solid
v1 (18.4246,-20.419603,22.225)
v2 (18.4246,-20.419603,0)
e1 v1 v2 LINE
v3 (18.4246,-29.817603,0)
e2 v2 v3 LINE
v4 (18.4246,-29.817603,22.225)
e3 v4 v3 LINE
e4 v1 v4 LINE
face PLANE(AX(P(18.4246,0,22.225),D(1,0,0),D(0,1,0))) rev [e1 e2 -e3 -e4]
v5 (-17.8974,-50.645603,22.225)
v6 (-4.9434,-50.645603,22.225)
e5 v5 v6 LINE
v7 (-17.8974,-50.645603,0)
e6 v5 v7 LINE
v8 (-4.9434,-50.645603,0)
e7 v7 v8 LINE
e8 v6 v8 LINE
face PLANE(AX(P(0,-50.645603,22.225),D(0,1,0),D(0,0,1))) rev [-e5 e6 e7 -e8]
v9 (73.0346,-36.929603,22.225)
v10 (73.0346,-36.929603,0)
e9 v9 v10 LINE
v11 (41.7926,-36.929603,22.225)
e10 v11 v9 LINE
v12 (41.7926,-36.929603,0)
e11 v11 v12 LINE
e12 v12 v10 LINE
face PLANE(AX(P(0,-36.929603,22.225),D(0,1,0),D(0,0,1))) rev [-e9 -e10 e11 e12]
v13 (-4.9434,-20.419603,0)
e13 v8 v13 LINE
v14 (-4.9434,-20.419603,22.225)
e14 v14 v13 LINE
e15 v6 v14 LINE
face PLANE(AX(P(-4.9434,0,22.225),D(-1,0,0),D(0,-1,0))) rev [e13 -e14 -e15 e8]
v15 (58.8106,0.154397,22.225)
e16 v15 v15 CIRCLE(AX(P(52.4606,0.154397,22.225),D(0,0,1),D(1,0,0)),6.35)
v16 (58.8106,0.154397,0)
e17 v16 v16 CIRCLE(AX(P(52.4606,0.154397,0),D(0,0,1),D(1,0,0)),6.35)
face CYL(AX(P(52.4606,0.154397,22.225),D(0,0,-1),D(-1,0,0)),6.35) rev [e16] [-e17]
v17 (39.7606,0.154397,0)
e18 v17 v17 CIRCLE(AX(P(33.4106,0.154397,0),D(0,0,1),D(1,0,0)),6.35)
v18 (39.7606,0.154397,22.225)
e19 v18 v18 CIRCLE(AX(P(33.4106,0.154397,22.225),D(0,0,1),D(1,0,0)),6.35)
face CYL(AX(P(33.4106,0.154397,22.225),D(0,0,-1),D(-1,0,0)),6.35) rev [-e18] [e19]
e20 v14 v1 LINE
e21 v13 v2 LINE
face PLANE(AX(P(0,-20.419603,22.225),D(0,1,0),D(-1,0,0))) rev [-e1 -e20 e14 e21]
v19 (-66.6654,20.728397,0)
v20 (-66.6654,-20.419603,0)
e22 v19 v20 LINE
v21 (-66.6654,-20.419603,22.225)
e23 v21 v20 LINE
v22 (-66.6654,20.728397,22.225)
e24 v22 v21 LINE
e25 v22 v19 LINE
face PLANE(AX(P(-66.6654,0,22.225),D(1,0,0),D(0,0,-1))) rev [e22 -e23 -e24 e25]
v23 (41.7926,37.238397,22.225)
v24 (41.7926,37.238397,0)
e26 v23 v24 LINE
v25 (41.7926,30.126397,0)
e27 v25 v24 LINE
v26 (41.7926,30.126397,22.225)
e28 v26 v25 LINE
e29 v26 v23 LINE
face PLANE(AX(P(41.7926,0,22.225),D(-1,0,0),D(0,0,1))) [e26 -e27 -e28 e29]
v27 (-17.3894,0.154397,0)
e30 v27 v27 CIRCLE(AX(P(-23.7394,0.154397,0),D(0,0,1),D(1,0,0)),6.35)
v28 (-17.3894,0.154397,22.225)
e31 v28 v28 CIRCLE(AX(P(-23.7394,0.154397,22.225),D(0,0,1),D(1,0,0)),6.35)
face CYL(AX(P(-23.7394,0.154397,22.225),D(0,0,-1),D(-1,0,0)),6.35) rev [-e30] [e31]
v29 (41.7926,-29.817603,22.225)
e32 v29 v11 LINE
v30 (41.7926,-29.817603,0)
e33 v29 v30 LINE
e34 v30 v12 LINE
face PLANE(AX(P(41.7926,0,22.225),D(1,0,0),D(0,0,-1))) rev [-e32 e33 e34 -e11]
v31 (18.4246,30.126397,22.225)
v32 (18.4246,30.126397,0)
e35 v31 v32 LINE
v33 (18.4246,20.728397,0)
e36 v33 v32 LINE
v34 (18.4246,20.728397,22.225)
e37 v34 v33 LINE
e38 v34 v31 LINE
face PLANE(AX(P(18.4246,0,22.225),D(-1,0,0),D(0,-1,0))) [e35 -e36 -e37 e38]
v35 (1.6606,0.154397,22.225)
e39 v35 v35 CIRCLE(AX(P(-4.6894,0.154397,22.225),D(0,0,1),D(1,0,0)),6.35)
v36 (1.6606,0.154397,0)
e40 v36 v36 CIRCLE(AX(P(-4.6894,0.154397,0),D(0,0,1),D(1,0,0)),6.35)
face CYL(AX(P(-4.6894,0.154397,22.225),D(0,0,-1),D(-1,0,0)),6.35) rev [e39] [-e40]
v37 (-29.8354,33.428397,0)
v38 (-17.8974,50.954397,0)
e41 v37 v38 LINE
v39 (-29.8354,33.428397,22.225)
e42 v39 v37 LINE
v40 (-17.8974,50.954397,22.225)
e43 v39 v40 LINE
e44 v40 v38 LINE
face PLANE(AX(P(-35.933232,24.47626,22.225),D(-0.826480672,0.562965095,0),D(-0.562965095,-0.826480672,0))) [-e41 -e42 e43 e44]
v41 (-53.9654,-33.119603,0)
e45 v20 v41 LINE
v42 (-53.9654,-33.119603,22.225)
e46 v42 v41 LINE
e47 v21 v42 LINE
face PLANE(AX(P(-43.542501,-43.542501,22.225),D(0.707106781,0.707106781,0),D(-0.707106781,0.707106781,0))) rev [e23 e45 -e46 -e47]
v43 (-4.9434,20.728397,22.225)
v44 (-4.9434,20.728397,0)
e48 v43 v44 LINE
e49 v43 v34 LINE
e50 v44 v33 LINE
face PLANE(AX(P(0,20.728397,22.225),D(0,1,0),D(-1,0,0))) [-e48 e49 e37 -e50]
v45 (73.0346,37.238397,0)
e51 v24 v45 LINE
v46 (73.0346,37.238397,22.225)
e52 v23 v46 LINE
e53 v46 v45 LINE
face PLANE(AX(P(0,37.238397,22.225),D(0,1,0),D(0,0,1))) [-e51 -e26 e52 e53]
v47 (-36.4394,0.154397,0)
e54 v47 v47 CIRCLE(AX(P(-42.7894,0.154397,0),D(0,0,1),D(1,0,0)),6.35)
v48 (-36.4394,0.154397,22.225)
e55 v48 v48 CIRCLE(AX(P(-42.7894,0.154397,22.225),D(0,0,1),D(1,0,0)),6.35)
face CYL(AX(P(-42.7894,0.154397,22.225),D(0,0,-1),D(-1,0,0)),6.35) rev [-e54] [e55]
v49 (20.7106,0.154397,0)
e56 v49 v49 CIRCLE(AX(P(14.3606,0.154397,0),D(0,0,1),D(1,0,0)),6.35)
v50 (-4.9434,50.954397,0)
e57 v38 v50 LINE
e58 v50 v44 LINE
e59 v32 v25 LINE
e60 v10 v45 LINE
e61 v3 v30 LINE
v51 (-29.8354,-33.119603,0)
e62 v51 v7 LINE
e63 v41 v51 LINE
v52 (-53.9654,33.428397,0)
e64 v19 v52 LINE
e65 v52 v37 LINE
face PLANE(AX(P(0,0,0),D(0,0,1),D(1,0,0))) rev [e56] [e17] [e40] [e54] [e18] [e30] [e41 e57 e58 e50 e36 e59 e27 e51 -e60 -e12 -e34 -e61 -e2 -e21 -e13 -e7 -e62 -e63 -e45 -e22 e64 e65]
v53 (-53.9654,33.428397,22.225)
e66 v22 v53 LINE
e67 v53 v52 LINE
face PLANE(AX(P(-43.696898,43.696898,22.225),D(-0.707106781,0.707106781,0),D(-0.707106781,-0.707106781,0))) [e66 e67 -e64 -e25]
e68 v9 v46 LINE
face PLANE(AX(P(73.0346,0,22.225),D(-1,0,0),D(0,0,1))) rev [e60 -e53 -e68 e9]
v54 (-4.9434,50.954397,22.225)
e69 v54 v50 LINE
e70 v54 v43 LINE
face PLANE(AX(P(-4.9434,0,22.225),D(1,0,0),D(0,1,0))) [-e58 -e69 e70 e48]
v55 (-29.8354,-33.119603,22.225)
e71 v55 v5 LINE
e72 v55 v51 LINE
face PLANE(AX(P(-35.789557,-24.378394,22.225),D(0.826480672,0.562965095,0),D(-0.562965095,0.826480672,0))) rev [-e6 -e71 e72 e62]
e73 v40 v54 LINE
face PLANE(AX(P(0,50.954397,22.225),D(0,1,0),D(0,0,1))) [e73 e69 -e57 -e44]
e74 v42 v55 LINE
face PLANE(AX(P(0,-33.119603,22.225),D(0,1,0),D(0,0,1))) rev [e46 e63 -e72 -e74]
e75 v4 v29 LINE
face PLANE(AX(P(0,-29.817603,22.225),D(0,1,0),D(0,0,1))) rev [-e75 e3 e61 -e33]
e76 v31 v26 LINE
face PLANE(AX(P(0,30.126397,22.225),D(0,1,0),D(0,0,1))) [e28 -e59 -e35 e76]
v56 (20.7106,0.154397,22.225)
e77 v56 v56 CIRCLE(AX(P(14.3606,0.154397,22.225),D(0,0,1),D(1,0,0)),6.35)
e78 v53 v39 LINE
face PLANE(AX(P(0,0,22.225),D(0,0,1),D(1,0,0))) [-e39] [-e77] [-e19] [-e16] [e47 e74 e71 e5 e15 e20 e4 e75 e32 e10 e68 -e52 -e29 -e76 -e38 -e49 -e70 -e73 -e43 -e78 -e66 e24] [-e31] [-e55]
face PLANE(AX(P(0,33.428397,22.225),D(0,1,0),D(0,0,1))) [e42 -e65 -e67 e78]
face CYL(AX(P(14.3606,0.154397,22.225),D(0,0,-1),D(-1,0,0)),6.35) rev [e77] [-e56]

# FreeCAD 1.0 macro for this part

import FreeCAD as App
import Part
import Sketcher
from FreeCAD import Vector
Q = App.Units.Quantity

doc = App.newDocument("Part")
params = doc.addObject("Spreadsheet::Sheet", "Params")
for row, (alias, value) in enumerate([
    ("sketch1_diameter", "0.5 in"),
    ("sketch1_width", "0.95 in"),
    ("sketch1_width2", "0.51 in"),
    ("sketch1_width3", "0.92 in"),
    ("sketch1_width4", "1.23 in"),
    ("pad1_length", "0.875 in"),
], start=1):
    params.set(f"A{row}", alias)
    params.set(f"B{row}", "=" + value)
    params.setAlias(f"B{row}", alias)

body = doc.addObject("PartDesign::Body", "Body")

# Sketch on XY plane
sketch1 = doc.addObject("Sketcher::SketchObject", "Sketch")
body.addObject(sketch1)
sketch1.AttachmentSupport = (doc.XY_Plane, [""])
sketch1.MapMode = "FlatFace"
sketch1.addGeometry([
    Part.LineSegment(Vector(-66.6654, -20.419603, 0), Vector(-53.9654, -33.119603, 0)),  # 0
    Part.LineSegment(Vector(-53.9654, -33.119603, 0), Vector(-29.8354, -33.119603, 0)),  # 1
    Part.LineSegment(Vector(-29.8354, -33.119603, 0), Vector(-17.8974, -50.645603, 0)),  # 2
    Part.LineSegment(Vector(-17.8974, -50.645603, 0), Vector(-4.9434, -50.645603, 0)),  # 3
    Part.LineSegment(Vector(-4.9434, -50.645603, 0), Vector(-4.9434, -20.419603, 0)),  # 4
    Part.LineSegment(Vector(-4.9434, -20.419603, 0), Vector(18.4246, -20.419603, 0)),  # 5
    Part.LineSegment(Vector(18.4246, -20.419603, 0), Vector(18.4246, -29.817603, 0)),  # 6
    Part.LineSegment(Vector(18.4246, -29.817603, 0), Vector(41.7926, -29.817603, 0)),  # 7
    Part.LineSegment(Vector(41.7926, -29.817603, 0), Vector(41.7926, -36.929603, 0)),  # 8
    Part.LineSegment(Vector(41.7926, -36.929603, 0), Vector(73.0346, -36.929603, 0)),  # 9
    Part.LineSegment(Vector(73.0346, -36.929603, 0), Vector(73.0346, 37.238397, 0)),  # 10
    Part.LineSegment(Vector(73.0346, 37.238397, 0), Vector(41.7926, 37.238397, 0)),  # 11
    Part.LineSegment(Vector(41.7926, 37.238397, 0), Vector(41.7926, 30.126397, 0)),  # 12
    Part.LineSegment(Vector(41.7926, 30.126397, 0), Vector(18.4246, 30.126397, 0)),  # 13
    Part.LineSegment(Vector(18.4246, 30.126397, 0), Vector(18.4246, 20.728397, 0)),  # 14
    Part.LineSegment(Vector(18.4246, 20.728397, 0), Vector(-4.9434, 20.728397, 0)),  # 15
    Part.LineSegment(Vector(-4.9434, 20.728397, 0), Vector(-4.9434, 50.954397, 0)),  # 16
    Part.LineSegment(Vector(-4.9434, 50.954397, 0), Vector(-17.8974, 50.954397, 0)),  # 17
    Part.LineSegment(Vector(-17.8974, 50.954397, 0), Vector(-29.8354, 33.428397, 0)),  # 18
    Part.LineSegment(Vector(-29.8354, 33.428397, 0), Vector(-53.9654, 33.428397, 0)),  # 19
    Part.LineSegment(Vector(-53.9654, 33.428397, 0), Vector(-66.6654, 20.728397, 0)),  # 20
    Part.LineSegment(Vector(-66.6654, 20.728397, 0), Vector(-66.6654, -20.419603, 0)),  # 21
    Part.Circle(Vector(52.4606, 0.154397, 0), Vector(0, 0, 1), 6.35),  # 22
    Part.Circle(Vector(33.4106, 0.154397, 0), Vector(0, 0, 1), 6.35),  # 23
    Part.Circle(Vector(14.3606, 0.154397, 0), Vector(0, 0, 1), 6.35),  # 24
    Part.Circle(Vector(-4.6894, 0.154397, 0), Vector(0, 0, 1), 6.35),  # 25
    Part.Circle(Vector(-23.7394, 0.154397, 0), Vector(0, 0, 1), 6.35),  # 26
    Part.Circle(Vector(-42.7894, 0.154397, 0), Vector(0, 0, 1), 6.35),  # 27
], False)
sketch1.addConstraint([
    Sketcher.Constraint("Coincident", 0, 2, 1, 1),
    Sketcher.Constraint("Coincident", 1, 2, 2, 1),
    Sketcher.Constraint("Coincident", 2, 2, 3, 1),
    Sketcher.Constraint("Coincident", 3, 2, 4, 1),
    Sketcher.Constraint("Coincident", 4, 2, 5, 1),
    Sketcher.Constraint("Coincident", 5, 2, 6, 1),
    Sketcher.Constraint("Coincident", 6, 2, 7, 1),
    Sketcher.Constraint("Coincident", 7, 2, 8, 1),
    Sketcher.Constraint("Coincident", 8, 2, 9, 1),
    Sketcher.Constraint("Coincident", 9, 2, 10, 1),
    Sketcher.Constraint("Coincident", 10, 2, 11, 1),
    Sketcher.Constraint("Coincident", 11, 2, 12, 1),
    Sketcher.Constraint("Coincident", 12, 2, 13, 1),
    Sketcher.Constraint("Coincident", 13, 2, 14, 1),
    Sketcher.Constraint("Coincident", 14, 2, 15, 1),
    Sketcher.Constraint("Coincident", 15, 2, 16, 1),
    Sketcher.Constraint("Coincident", 16, 2, 17, 1),
    Sketcher.Constraint("Coincident", 17, 2, 18, 1),
    Sketcher.Constraint("Coincident", 18, 2, 19, 1),
    Sketcher.Constraint("Coincident", 19, 2, 20, 1),
    Sketcher.Constraint("Coincident", 20, 2, 21, 1),
    Sketcher.Constraint("Coincident", 21, 2, 0, 1),
    Sketcher.Constraint("Horizontal", 1),
    Sketcher.Constraint("Horizontal", 3),
    Sketcher.Constraint("Vertical", 4),
    Sketcher.Constraint("Horizontal", 5),
    Sketcher.Constraint("Vertical", 6),
    Sketcher.Constraint("Horizontal", 7),
    Sketcher.Constraint("Vertical", 8),
    Sketcher.Constraint("Horizontal", 9),
    Sketcher.Constraint("Vertical", 10),
    Sketcher.Constraint("Horizontal", 11),
    Sketcher.Constraint("Vertical", 12),
    Sketcher.Constraint("Horizontal", 13),
    Sketcher.Constraint("Vertical", 14),
    Sketcher.Constraint("Horizontal", 15),
    Sketcher.Constraint("Vertical", 16),
    Sketcher.Constraint("Horizontal", 17),
    Sketcher.Constraint("Horizontal", 19),
    Sketcher.Constraint("Vertical", 21),
    Sketcher.Constraint("Equal", 22, 23),
    Sketcher.Constraint("Equal", 23, 24),
    Sketcher.Constraint("Equal", 24, 25),
    Sketcher.Constraint("Equal", 25, 26),
    Sketcher.Constraint("Equal", 26, 27),
    Sketcher.Constraint("Perpendicular", 0, 20),
    Sketcher.Constraint("Horizontal", 22, 3, 23, 3),
    Sketcher.Constraint("Horizontal", 23, 3, 24, 3),
    Sketcher.Constraint("Horizontal", 24, 3, 25, 3),
    Sketcher.Constraint("Horizontal", 25, 3, 26, 3),
    Sketcher.Constraint("Horizontal", 26, 3, 27, 3),
    Sketcher.Constraint("Horizontal", 15, 2, 20, 2),
    Sketcher.Constraint("Horizontal", 5, 2, 21, 2),
    Sketcher.Constraint("Vertical", 8, 2, 11, 2),
    Sketcher.Constraint("Vertical", 6, 2, 13, 2),
    Sketcher.Constraint("Vertical", 4, 2, 15, 2),
    Sketcher.Constraint("Vertical", 2, 2, 17, 2),
    Sketcher.Constraint("Vertical", 1, 2, 18, 2),
    Sketcher.Constraint("Vertical", 0, 2, 19, 2),
    Sketcher.Constraint("Equal", 5, 7),
    Sketcher.Constraint("Equal", 8, 12),
    Sketcher.Constraint("Equal", 6, 14),
    Sketcher.Constraint("Equal", 4, 16),
    Sketcher.Constraint("Equal", 2, 18),
    Sketcher.Constraint("Diameter", 22, Q("0.5 in")),
    Sketcher.Constraint("DistanceX", 26, 3, 22, 3, Q("3 in")),
    Sketcher.Constraint("DistanceX", 27, 3, 23, 3, Q("3 in")),
    Sketcher.Constraint("DistanceY", 2, 2, 26, 3, Q("2 in")),
    Sketcher.Constraint("DistanceY", 25, 3, 16, 2, Q("2 in")),
    Sketcher.Constraint("DistanceX", 1, 1, 1, 2, Q("0.95 in")),
    Sketcher.Constraint("DistanceX", 3, 1, 3, 2, Q("0.51 in")),
    Sketcher.Constraint("DistanceX", 5, 1, 5, 2, Q("0.92 in")),
    Sketcher.Constraint("DistanceX", 9, 1, 9, 2, Q("1.23 in")),
    Sketcher.Constraint("DistanceY", 4, 1, 4, 2, Q("1.19 in")),
    Sketcher.Constraint("DistanceY", 6, 2, 6, 1, Q("0.37 in")),
    Sketcher.Constraint("DistanceY", 8, 2, 8, 1, Q("0.28 in")),
    Sketcher.Constraint("DistanceX", 24, 3, 22, 3, Q("1.5 in")),
    Sketcher.Constraint("DistanceX", 25, 3, 23, 3, Q("1.5 in")),
    Sketcher.Constraint("DistanceY", 1, 2, 4, 2, Q("0.5 in")),
    Sketcher.Constraint("DistanceX", 23, 3, 22, 3, Q("0.75 in")),
    Sketcher.Constraint("DistanceX", 0, 2, 27, 3, Q("0.44 in")),
    Sketcher.Constraint("DistanceX", 1, 2, 2, 2, Q("0.47 in")),
    Sketcher.Constraint("DistanceX", -1, 1, 22, 3, 52.4606),
    Sketcher.Constraint("DistanceY", -1, 1, 22, 3, 0.154397),
])
sketch1.setExpression("Constraints[64]", "Params.sketch1_diameter")
sketch1.setExpression("Constraints[69]", "Params.sketch1_width")
sketch1.setExpression("Constraints[70]", "Params.sketch1_width2")
sketch1.setExpression("Constraints[71]", "Params.sketch1_width3")
sketch1.setExpression("Constraints[72]", "Params.sketch1_width4")
pad1 = doc.addObject("PartDesign::Pad", "Pad")
body.addObject(pad1)
pad1.Profile = sketch1
pad1.setExpression("Length", "Params.pad1_length")

doc.recompute()
